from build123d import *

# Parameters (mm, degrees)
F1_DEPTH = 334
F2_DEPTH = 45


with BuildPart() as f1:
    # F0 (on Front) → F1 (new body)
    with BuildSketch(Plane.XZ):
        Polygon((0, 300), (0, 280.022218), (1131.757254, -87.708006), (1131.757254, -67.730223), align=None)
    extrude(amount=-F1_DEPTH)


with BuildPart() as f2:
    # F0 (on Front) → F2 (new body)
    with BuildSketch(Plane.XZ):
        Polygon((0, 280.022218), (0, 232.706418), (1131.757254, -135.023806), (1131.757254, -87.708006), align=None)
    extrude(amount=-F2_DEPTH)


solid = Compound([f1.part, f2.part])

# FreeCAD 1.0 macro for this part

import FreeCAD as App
import Part
import Sketcher
Q = App.Units.Quantity

doc = App.newDocument("Part")
body = doc.addObject("PartDesign::Body", "Body")

# Sketch on XZ plane
sketch1 = doc.addObject("Sketcher::SketchObject", "Sketch")
body.addObject(sketch1)
sketch1.AttachmentSupport = (doc.XZ_Plane, [""])
sketch1.MapMode = "FlatFace"
sketch1.addGeometry([
    Part.LineSegment(App.Vector(0, 300, 0), App.Vector(0, 280, 0)),
    Part.LineSegment(App.Vector(0, 280, 0), App.Vector(1132, -88, 0)),
    Part.LineSegment(App.Vector(1132, -88, 0), App.Vector(1132, -68, 0)),
    Part.LineSegment(App.Vector(1132, -68, 0), App.Vector(0, 300, 0)),
], False)
sketch1.addConstraint([
    Sketcher.Constraint("Coincident", 0, 2, 1, 1),
    Sketcher.Constraint("Coincident", 1, 2, 2, 1),
    Sketcher.Constraint("Coincident", 2, 2, 3, 1),
    Sketcher.Constraint("Coincident", 3, 2, 0, 1),
    Sketcher.Constraint("Vertical", 0),
    Sketcher.Constraint("Vertical", 2),
    Sketcher.Constraint("PointOnObject", 0, 2, -2),
    Sketcher.Constraint("Parallel", 1, 3),
    Sketcher.Constraint("Angle", 1, Q("-18 deg")),
    Sketcher.Constraint("Distance", 1, 1190.0),
    Sketcher.Constraint("DistanceY", -1, 1, 3, 2, 300.0),
    Sketcher.Constraint("DistanceY", 0, 2, 0, 1, 19.977782),
])
pad1 = doc.addObject("PartDesign::Pad", "Pad")
body.addObject(pad1)
pad1.Profile = sketch1
pad1.Length = 334
pad1.Reversed = True
body2 = doc.addObject("PartDesign::Body", "Body001")

# Sketch on XZ plane
sketch2 = doc.addObject("Sketcher::SketchObject", "Sketch001")
body2.addObject(sketch2)
sketch2.AttachmentSupport = (doc.getObject("XZ_Plane001"), [""])
sketch2.MapMode = "FlatFace"
sketch2.addGeometry([
    Part.LineSegment(App.Vector(0, 280, 0), App.Vector(0, 233, 0)),
    Part.LineSegment(App.Vector(0, 233, 0), App.Vector(1132, -135, 0)),
    Part.LineSegment(App.Vector(1132, -135, 0), App.Vector(1132, -88, 0)),
    Part.LineSegment(App.Vector(1132, -88, 0), App.Vector(0, 280, 0)),
], False)
sketch2.addConstraint([
    Sketcher.Constraint("Coincident", 0, 2, 1, 1),
    Sketcher.Constraint("Coincident", 1, 2, 2, 1),
    Sketcher.Constraint("Coincident", 2, 2, 3, 1),
    Sketcher.Constraint("Coincident", 3, 2, 0, 1),
    Sketcher.Constraint("Vertical", 0),
    Sketcher.Constraint("Vertical", 2),
    Sketcher.Constraint("PointOnObject", 0, 2, -2),
    Sketcher.Constraint("Parallel", 1, 3),
    Sketcher.Constraint("Angle", 1, Q("-18 deg")),
    Sketcher.Constraint("Distance", 1, 1190.0),
    Sketcher.Constraint("DistanceY", 0, 2, 0, 1, 47.3158),
    Sketcher.Constraint("DistanceY", -1, 1, 0, 2, 232.706418),
])
pad2 = doc.addObject("PartDesign::Pad", "Pad001")
body2.addObject(pad2)
pad2.Profile = sketch2
pad2.Length = 45
pad2.Reversed = True

doc.recompute()
